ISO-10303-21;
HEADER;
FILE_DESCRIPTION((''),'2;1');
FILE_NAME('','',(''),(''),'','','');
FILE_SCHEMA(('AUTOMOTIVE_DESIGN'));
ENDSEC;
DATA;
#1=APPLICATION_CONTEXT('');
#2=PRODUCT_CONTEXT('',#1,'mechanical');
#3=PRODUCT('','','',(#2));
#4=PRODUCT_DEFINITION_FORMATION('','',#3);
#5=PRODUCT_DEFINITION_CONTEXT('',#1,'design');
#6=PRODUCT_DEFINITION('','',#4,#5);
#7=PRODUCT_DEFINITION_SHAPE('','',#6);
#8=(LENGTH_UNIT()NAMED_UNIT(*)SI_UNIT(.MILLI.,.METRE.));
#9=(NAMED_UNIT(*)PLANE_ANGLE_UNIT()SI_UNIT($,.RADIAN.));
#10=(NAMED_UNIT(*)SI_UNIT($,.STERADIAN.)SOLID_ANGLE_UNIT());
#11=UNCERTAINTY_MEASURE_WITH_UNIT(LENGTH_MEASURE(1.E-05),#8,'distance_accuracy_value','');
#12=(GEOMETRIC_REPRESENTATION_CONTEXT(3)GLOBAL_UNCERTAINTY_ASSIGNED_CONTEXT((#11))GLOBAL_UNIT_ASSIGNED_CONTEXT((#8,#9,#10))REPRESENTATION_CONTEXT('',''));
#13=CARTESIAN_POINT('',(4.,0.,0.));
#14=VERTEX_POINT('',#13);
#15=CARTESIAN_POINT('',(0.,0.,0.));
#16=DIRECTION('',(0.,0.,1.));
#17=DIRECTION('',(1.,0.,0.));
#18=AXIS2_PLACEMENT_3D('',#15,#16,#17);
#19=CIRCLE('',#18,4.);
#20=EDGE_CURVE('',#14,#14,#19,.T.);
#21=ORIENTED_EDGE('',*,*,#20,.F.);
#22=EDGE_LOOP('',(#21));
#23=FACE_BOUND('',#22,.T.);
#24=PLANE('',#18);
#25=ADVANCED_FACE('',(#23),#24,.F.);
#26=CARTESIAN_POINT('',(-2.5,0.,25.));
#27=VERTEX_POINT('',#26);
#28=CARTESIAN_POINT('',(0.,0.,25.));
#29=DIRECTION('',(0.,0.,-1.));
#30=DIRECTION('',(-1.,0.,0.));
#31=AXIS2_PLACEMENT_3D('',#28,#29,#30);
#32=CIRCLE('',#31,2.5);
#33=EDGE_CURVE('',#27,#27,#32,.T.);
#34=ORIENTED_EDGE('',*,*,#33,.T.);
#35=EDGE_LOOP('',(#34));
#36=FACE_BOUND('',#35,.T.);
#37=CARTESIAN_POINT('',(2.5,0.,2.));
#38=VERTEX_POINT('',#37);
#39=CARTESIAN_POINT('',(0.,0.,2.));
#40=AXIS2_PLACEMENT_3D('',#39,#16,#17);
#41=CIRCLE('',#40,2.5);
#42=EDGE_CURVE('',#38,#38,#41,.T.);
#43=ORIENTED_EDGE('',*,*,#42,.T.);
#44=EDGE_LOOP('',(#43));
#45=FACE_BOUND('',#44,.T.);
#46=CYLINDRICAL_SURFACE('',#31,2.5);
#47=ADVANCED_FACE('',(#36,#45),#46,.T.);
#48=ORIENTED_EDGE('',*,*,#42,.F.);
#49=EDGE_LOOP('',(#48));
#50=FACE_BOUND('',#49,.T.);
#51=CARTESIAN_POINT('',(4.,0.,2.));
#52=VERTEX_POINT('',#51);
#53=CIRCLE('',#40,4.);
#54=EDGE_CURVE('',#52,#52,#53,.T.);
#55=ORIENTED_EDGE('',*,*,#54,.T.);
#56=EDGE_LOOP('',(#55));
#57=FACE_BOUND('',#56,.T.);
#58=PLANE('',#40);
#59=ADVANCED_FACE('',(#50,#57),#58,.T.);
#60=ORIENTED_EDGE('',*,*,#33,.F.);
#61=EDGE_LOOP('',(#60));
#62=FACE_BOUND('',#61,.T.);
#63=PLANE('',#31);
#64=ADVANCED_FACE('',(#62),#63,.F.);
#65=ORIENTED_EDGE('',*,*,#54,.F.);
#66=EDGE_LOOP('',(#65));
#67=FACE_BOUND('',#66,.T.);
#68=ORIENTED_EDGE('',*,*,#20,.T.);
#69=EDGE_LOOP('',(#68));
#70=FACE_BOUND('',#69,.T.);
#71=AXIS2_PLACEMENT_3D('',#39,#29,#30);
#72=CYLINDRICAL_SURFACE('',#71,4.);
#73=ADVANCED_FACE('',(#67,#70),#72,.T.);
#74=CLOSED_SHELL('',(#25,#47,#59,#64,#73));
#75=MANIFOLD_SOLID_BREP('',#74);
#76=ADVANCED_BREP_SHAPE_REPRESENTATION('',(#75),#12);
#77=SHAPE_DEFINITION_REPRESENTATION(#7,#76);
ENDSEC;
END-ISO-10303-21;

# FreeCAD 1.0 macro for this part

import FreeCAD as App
import Part
import Sketcher
from FreeCAD import Vector

doc = App.newDocument("Part")
body = doc.addObject("PartDesign::Body", "Body")

sketch1 = body.newObject("Sketcher::SketchObject", "Sketch")
sketch1.AttachmentSupport = (doc.getObject("XY_Plane"), [""])
sketch1.MapMode = "FlatFace"
sketch1.addGeometry(Part.Circle(Vector(0, 0, 0), Vector(0, 0, 1), 4), False)
sketch1.addConstraint([
    Sketcher.Constraint("Coincident", 0, 3, -1, 1),
    Sketcher.Constraint("Diameter", 0, 8.0),
])
pad1 = body.newObject("PartDesign::Pad", "Pad")
pad1.Profile = sketch1
pad1.Length = 2

sketch2 = body.newObject("Sketcher::SketchObject", "Sketch001")
sketch2.AttachmentSupport = (doc.getObject("XY_Plane"), [""])
sketch2.MapMode = "FlatFace"
sketch2.addGeometry(Part.Circle(Vector(0, 0, 0), Vector(0, 0, 1), 2.5), False)
sketch2.addConstraint([
    Sketcher.Constraint("Coincident", 0, 3, -1, 1),
    Sketcher.Constraint("Diameter", 0, 5.0),
])
pad2 = body.newObject("PartDesign::Pad", "Pad001")
pad2.Profile = sketch2
pad2.Length = 25

doc.recompute()
